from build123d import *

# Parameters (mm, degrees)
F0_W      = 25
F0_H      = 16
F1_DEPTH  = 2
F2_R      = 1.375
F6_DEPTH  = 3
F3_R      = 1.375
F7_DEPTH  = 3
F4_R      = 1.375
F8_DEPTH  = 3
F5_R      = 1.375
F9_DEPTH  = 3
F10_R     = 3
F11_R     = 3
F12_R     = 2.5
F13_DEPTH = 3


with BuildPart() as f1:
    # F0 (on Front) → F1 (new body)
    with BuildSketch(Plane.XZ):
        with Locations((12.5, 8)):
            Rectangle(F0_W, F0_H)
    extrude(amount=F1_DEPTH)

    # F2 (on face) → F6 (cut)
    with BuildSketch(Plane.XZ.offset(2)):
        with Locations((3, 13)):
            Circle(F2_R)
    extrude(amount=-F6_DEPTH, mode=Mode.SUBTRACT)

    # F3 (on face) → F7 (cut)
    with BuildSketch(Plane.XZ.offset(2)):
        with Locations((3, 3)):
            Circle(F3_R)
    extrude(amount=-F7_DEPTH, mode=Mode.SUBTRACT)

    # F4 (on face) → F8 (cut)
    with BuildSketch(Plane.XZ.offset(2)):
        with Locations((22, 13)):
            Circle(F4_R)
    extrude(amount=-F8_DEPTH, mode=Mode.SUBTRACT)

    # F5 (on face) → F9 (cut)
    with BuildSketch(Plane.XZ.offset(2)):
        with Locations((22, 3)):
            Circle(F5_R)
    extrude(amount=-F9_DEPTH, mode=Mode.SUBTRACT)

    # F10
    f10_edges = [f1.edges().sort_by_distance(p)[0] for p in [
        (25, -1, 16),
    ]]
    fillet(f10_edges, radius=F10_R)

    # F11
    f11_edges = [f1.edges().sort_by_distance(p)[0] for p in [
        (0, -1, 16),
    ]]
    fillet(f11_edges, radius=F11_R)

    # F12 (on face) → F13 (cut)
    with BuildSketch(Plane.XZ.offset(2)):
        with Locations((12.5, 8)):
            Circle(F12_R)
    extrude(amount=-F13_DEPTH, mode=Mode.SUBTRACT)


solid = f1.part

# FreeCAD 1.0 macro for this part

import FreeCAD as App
import Part
import Sketcher
from FreeCAD import Vector


def edges_at(feature, points):
    """Names of the edges that pass closest to the given points."""
    edges = feature.Shape.Edges
    near = lambda p: min(range(len(edges)), key=lambda i: edges[i].distToShape(Part.Vertex(*p))[0])
    return sorted({f"Edge{near(p) + 1}" for p in points})

doc = App.newDocument("Part")
body = doc.addObject("PartDesign::Body", "Body")

# Sketch on XZ plane
sketch1 = body.newObject("Sketcher::SketchObject", "Sketch")
sketch1.AttachmentSupport = (doc.getObject("XZ_Plane"), [""])
sketch1.MapMode = "FlatFace"
sketch1.addGeometry([
    Part.LineSegment(Vector(0, 16, 0), Vector(0, 0, 0)),
    Part.LineSegment(Vector(0, 0, 0), Vector(25, 0, 0)),
    Part.LineSegment(Vector(25, 0, 0), Vector(25, 16, 0)),
    Part.LineSegment(Vector(25, 16, 0), Vector(0, 16, 0)),
], False)
sketch1.addConstraint([
    Sketcher.Constraint("Coincident", 0, 2, 1, 1),
    Sketcher.Constraint("Coincident", 1, 2, 2, 1),
    Sketcher.Constraint("Coincident", 2, 2, 3, 1),
    Sketcher.Constraint("Coincident", 3, 2, 0, 1),
    Sketcher.Constraint("Vertical", 0),
    Sketcher.Constraint("Horizontal", 1),
    Sketcher.Constraint("Vertical", 2),
    Sketcher.Constraint("Horizontal", 3),
    Sketcher.Constraint("Coincident", 0, 2, -1, 1),
    Sketcher.Constraint("DistanceX", 1, 1, 1, 2, 25.0),
    Sketcher.Constraint("DistanceY", 0, 2, 0, 1, 16.0),
])
pad1 = body.newObject("PartDesign::Pad", "Pad")
pad1.Profile = sketch1
pad1.Length = 2

# Sketch on XZ plane
sketch2 = body.newObject("Sketcher::SketchObject", "Sketch001")
sketch2.AttachmentSupport = (doc.getObject("XZ_Plane"), [""])
sketch2.MapMode = "FlatFace"
sketch2.AttachmentOffset = App.Placement(Vector(0, 0, 2), App.Rotation())
sketch2.addGeometry(Part.Circle(Vector(3, 13, 0), Vector(0, 0, 1), 1.4), False)
sketch2.addConstraint([
    Sketcher.Constraint("Diameter", 0, 2.75),
    Sketcher.Constraint("DistanceX", -1, 1, 0, 3, 3.0),
    Sketcher.Constraint("DistanceY", -1, 1, 0, 3, 13.0),
])
pocket1 = body.newObject("PartDesign::Pocket", "Pocket")
pocket1.Profile = sketch2
pocket1.Length = 3

# Sketch on XZ plane
sketch3 = body.newObject("Sketcher::SketchObject", "Sketch002")
sketch3.AttachmentSupport = (doc.getObject("XZ_Plane"), [""])
sketch3.MapMode = "FlatFace"
sketch3.AttachmentOffset = App.Placement(Vector(0, 0, 2), App.Rotation())
sketch3.addGeometry(Part.Circle(Vector(3, 3, 0), Vector(0, 0, 1), 1.4), False)
sketch3.addConstraint([
    Sketcher.Constraint("Diameter", 0, 2.75),
    Sketcher.Constraint("DistanceX", -1, 1, 0, 3, 3.0),
    Sketcher.Constraint("DistanceY", -1, 1, 0, 3, 3.0),
])
pocket2 = body.newObject("PartDesign::Pocket", "Pocket001")
pocket2.Profile = sketch3
pocket2.Length = 3

# Sketch on XZ plane
sketch4 = body.newObject("Sketcher::SketchObject", "Sketch003")
sketch4.AttachmentSupport = (doc.getObject("XZ_Plane"), [""])
sketch4.MapMode = "FlatFace"
sketch4.AttachmentOffset = App.Placement(Vector(0, 0, 2), App.Rotation())
sketch4.addGeometry(Part.Circle(Vector(22, 13, 0), Vector(0, 0, 1), 1.4), False)
sketch4.addConstraint([
    Sketcher.Constraint("Diameter", 0, 2.75),
    Sketcher.Constraint("DistanceX", -1, 1, 0, 3, 22.0),
    Sketcher.Constraint("DistanceY", -1, 1, 0, 3, 13.0),
])
pocket3 = body.newObject("PartDesign::Pocket", "Pocket002")
pocket3.Profile = sketch4
pocket3.Length = 3

# Sketch on XZ plane
sketch5 = body.newObject("Sketcher::SketchObject", "Sketch004")
sketch5.AttachmentSupport = (doc.getObject("XZ_Plane"), [""])
sketch5.MapMode = "FlatFace"
sketch5.AttachmentOffset = App.Placement(Vector(0, 0, 2), App.Rotation())
sketch5.addGeometry(Part.Circle(Vector(22, 3, 0), Vector(0, 0, 1), 1.4), False)
sketch5.addConstraint([
    Sketcher.Constraint("Diameter", 0, 2.75),
    Sketcher.Constraint("DistanceX", -1, 1, 0, 3, 22.0),
    Sketcher.Constraint("DistanceY", -1, 1, 0, 3, 3.0),
])
pocket4 = body.newObject("PartDesign::Pocket", "Pocket003")
pocket4.Profile = sketch5
pocket4.Length = 3
doc.recompute()

fillet = body.newObject("PartDesign::Fillet", "Fillet")
fillet.Base = (pocket4, edges_at(pocket4, [(25, -1, 16)]))
fillet.Radius = 3
doc.recompute()

fillet2 = body.newObject("PartDesign::Fillet", "Fillet001")
fillet2.Base = (fillet, edges_at(fillet, [(0, -1, 16)]))
fillet2.Radius = 3

# Sketch on XZ plane
sketch6 = body.newObject("Sketcher::SketchObject", "Sketch005")
sketch6.AttachmentSupport = (doc.getObject("XZ_Plane"), [""])
sketch6.MapMode = "FlatFace"
sketch6.AttachmentOffset = App.Placement(Vector(0, 0, 2), App.Rotation())
sketch6.addGeometry(Part.Circle(Vector(12.5, 8, 0), Vector(0, 0, 1), 2.5), False)
sketch6.addConstraint([
    Sketcher.Constraint("Diameter", 0, 5.0),
    Sketcher.Constraint("DistanceY", -1, 1, 0, 3, 8.0),
    Sketcher.Constraint("DistanceX", -1, 1, 0, 3, 12.5),
])
pocket5 = body.newObject("PartDesign::Pocket", "Pocket004")
pocket5.Profile = sketch6
pocket5.Length = 3

doc.recompute()
